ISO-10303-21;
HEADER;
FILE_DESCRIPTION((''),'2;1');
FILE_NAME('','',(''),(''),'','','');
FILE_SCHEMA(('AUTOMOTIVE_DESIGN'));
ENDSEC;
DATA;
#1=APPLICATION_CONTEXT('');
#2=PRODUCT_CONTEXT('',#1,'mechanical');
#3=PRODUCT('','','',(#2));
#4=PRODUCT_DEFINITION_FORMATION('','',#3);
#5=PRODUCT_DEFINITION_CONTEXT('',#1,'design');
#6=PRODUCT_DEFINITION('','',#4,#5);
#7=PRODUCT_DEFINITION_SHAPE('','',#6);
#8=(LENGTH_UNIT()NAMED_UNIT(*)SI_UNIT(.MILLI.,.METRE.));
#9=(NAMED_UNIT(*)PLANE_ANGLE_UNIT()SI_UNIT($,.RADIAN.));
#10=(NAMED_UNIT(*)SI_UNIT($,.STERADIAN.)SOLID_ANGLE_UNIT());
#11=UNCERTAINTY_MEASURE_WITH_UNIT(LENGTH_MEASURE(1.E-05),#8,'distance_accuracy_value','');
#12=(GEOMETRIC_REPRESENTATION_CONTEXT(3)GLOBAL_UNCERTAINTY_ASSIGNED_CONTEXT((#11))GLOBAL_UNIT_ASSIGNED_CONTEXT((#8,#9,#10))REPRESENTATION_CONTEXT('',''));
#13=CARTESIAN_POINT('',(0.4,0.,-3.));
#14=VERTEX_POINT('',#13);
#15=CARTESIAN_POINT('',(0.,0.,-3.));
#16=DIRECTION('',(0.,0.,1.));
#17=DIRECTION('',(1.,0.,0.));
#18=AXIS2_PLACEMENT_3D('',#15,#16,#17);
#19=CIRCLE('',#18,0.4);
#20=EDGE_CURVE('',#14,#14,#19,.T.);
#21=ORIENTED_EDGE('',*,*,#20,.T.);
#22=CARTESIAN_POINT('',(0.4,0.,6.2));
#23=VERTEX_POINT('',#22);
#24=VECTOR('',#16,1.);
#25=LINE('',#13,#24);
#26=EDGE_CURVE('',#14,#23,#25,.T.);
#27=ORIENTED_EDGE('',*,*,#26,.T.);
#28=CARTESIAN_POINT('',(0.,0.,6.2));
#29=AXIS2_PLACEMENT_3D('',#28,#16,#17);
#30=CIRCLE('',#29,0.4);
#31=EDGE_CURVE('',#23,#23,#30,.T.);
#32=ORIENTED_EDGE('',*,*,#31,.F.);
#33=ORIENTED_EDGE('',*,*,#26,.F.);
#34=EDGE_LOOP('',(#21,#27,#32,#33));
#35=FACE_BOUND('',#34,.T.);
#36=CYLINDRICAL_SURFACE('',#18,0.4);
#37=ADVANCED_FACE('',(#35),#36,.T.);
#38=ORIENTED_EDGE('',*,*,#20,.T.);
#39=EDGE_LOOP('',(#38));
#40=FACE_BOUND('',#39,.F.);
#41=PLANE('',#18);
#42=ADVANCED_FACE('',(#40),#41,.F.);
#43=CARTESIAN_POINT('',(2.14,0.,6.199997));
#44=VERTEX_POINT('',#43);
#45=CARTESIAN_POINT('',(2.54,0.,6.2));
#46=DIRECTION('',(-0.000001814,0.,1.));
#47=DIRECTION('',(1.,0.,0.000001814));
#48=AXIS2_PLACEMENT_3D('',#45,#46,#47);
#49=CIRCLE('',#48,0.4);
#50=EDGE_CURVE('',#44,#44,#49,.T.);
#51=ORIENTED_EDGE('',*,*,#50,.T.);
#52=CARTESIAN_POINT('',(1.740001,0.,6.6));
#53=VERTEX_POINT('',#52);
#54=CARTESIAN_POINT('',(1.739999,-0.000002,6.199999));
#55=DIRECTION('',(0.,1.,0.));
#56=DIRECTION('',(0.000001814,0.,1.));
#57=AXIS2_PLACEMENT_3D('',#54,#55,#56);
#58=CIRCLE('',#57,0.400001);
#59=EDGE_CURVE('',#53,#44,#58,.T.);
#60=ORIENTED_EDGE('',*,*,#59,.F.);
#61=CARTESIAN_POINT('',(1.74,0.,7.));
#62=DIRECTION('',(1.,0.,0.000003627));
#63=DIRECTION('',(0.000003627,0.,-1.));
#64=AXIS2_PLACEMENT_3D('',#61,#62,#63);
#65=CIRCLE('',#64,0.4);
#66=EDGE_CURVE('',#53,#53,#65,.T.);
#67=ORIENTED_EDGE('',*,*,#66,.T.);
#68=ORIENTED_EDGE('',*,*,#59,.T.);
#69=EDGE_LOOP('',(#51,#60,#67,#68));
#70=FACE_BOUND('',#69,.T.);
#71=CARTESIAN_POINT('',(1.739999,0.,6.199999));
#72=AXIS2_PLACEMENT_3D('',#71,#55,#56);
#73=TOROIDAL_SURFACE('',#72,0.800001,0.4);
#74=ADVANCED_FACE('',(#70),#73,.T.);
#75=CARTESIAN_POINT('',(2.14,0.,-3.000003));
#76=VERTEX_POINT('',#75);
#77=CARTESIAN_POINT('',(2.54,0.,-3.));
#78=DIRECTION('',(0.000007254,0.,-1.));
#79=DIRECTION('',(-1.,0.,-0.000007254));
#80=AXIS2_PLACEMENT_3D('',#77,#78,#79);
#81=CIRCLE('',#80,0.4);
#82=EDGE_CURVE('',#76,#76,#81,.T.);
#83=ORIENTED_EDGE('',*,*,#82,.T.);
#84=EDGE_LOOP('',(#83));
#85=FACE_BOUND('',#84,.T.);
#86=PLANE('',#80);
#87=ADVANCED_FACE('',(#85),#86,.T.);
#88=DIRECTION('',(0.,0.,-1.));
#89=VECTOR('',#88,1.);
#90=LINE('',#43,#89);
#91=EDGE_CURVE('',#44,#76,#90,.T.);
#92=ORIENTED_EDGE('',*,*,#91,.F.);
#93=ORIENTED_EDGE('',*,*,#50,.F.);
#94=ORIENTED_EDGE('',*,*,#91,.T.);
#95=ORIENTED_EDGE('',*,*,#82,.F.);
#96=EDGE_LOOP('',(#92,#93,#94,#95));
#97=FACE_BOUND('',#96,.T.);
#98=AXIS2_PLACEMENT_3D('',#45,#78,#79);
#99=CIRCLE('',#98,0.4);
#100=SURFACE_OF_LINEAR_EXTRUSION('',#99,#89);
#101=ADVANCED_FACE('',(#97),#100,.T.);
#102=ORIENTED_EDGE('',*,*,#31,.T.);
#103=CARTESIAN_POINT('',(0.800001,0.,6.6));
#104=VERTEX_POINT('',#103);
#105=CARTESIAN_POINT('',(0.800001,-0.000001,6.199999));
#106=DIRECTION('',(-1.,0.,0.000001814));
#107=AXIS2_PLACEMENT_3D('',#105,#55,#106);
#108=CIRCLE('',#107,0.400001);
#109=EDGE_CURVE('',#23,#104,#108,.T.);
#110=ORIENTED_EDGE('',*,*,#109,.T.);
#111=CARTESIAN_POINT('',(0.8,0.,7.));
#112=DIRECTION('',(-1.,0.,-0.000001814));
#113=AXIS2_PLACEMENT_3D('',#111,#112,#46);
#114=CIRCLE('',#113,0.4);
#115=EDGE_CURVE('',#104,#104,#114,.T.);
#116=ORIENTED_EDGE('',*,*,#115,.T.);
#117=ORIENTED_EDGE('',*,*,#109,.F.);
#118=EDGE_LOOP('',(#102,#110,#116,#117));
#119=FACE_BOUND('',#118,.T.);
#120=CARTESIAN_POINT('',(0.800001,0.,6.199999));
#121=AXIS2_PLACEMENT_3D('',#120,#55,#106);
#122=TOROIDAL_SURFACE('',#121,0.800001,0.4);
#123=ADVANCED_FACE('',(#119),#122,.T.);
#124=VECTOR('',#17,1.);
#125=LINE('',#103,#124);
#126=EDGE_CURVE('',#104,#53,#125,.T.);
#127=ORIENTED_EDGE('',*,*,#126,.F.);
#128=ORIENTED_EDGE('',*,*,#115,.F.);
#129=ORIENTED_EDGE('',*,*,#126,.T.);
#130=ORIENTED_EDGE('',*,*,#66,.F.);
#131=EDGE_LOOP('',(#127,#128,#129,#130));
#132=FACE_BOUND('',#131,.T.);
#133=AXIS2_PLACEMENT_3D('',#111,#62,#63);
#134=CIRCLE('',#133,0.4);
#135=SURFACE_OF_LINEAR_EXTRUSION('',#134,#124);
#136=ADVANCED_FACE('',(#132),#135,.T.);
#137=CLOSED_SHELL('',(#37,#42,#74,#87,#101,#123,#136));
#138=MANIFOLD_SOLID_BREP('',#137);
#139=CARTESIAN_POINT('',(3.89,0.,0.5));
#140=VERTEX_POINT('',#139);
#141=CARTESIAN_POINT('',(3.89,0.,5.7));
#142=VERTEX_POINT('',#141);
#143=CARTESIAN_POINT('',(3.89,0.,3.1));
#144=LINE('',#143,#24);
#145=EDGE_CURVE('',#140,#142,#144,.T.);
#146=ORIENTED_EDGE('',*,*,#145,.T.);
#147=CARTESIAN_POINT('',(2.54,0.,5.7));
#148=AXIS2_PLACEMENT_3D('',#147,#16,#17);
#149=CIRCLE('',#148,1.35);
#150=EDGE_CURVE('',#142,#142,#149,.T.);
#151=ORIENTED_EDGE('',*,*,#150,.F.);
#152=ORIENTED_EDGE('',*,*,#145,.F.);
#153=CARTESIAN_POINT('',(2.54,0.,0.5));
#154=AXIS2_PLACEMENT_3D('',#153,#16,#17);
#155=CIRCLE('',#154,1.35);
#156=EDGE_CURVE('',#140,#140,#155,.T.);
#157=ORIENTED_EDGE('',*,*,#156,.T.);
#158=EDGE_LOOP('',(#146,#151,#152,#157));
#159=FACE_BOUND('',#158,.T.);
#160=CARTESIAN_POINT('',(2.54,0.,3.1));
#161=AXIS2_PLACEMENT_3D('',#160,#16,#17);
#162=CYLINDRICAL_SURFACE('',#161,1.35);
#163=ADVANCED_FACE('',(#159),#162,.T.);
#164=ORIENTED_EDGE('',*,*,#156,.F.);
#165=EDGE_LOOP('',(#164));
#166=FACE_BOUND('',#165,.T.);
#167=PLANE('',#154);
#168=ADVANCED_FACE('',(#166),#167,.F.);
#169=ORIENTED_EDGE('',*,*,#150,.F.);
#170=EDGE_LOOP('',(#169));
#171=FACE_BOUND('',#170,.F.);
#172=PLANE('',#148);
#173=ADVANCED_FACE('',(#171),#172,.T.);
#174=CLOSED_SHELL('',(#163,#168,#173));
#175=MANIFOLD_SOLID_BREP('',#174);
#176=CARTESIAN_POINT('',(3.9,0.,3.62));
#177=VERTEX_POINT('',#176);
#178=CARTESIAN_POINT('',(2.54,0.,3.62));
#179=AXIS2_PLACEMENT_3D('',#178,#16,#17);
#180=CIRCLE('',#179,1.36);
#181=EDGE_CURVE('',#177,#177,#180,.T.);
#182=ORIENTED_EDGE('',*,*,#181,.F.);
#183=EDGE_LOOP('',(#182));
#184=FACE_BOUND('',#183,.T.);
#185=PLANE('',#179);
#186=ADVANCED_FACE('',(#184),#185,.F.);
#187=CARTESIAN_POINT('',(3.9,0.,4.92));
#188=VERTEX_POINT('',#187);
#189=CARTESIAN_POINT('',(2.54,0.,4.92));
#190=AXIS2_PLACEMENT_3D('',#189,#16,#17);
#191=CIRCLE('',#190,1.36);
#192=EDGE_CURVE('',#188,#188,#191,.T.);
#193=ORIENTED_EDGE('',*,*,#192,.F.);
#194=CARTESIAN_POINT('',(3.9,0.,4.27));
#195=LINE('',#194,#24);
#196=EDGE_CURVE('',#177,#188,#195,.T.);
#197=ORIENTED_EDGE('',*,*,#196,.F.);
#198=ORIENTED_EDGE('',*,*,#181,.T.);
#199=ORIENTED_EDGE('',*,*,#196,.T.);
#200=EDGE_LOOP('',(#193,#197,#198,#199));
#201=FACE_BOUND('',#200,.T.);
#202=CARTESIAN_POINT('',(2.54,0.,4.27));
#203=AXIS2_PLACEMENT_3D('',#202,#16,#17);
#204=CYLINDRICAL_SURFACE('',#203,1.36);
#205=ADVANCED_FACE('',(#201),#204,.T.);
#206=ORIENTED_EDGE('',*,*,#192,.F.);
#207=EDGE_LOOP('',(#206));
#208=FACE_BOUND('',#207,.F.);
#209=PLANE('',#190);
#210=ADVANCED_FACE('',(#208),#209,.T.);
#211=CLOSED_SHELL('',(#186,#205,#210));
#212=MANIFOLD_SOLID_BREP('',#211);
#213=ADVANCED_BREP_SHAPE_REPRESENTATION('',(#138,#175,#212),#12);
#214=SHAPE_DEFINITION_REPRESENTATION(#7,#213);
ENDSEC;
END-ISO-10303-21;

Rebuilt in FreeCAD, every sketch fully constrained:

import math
import FreeCAD as App
import Part
import Sketcher


def add_polygon(sketch, points):
    """Adds a closed chain of lines whose ends are joined by coincident constraints."""
    first, n = sketch.GeometryCount, len(points)
    for a, b in zip(points, points[1:] + points[:1]):
        sketch.addGeometry(Part.LineSegment(App.Vector(*a, 0), App.Vector(*b, 0)), False)
    for i in range(n):
        sketch.addConstraint(Sketcher.Constraint("Coincident", first + i, 2, first + (i + 1) % n, 1))

doc = App.newDocument("Part")
params = doc.addObject("Spreadsheet::Sheet", "Params")
for row, (alias, value) in enumerate([
    ("sketch1_diameter", "0.8 mm"),
    ("sketch2_radius", "0.800001 mm"),
    ("sketch2_height", "9.2 mm"),
    ("sketch2_width", "0.94 mm"),
    ("sketch3_height", "5.2 mm"),
    ("sketch3_width", "1.35 mm"),
    ("revolution_angle", "360 deg"),
    ("sketch4_height", "1.3 mm"),
    ("sketch4_width", "1.36 mm"),
    ("revolution2_angle", "360 deg"),
], start=1):
    params.set(f"A{row}", alias)
    params.set(f"B{row}", "=" + value)
    params.setAlias(f"B{row}", alias)

body = doc.addObject("PartDesign::Body", "Body")

# Sketch on XY plane
sketch1 = doc.addObject("Sketcher::SketchObject", "Sketch")
body.addObject(sketch1)
sketch1.AttachmentSupport = (doc.XY_Plane, [""])
sketch1.MapMode = "FlatFace"
sketch1.addGeometry(Part.Circle(App.Vector(0, 0, 0), App.Vector(0, 0, 1), 0.4), False)
sketch1.addConstraint([
    Sketcher.Constraint("Coincident", 0, 3, -1, 1),
    Sketcher.Constraint("Diameter", 0, 0.8),
])
sketch1.setExpression("Constraints[1]", "Params.sketch1_diameter")

# Sketch on XZ plane
sketch2 = doc.addObject("Sketcher::SketchObject", "Sketch001")
body.addObject(sketch2)
sketch2.AttachmentSupport = (doc.XZ_Plane, [""])
sketch2.MapMode = "FlatFace"
sketch2.addGeometry([
    Part.LineSegment(App.Vector(0, -3, 0), App.Vector(0, 6.2, 0)),  # 0
    Part.ArcOfCircle(Part.Circle(App.Vector(0.800001, 6.199999, 0), App.Vector(0, 0, 1), 0.800001), math.radians(90.000104), math.radians(179.999896)),  # 1
    Part.LineSegment(App.Vector(0.8, 7, 0), App.Vector(1.74, 7, 0)),  # 2
    Part.ArcOfCircle(Part.Circle(App.Vector(1.739999, 6.199999, 0), App.Vector(0, 0, 1), 0.800001), math.radians(0.000104), math.radians(89.999896)),  # 3
    Part.LineSegment(App.Vector(2.54, 6.2, 0), App.Vector(2.54, -3, 0)),  # 4
], False)
sketch2.addConstraint([
    Sketcher.Constraint("Tangent", 0, 2, 1, 2),
    Sketcher.Constraint("Tangent", 1, 1, 2, 1),
    Sketcher.Constraint("Tangent", 2, 2, 3, 2),
    Sketcher.Constraint("Tangent", 3, 1, 4, 1),
    Sketcher.Constraint("Vertical", 0),
    Sketcher.Constraint("Horizontal", 2),
    Sketcher.Constraint("Vertical", 4),
    Sketcher.Constraint("Equal", 1, 3),
    Sketcher.Constraint("PointOnObject", 0, 1, -2),
    Sketcher.Constraint("Horizontal", 0, 1, 4, 2),
    Sketcher.Constraint("Radius", 1, 0.800001),
    Sketcher.Constraint("DistanceY", 0, 1, 0, 2, 9.2),
    Sketcher.Constraint("DistanceY", 0, 1, -1, 1, 3.0),
    Sketcher.Constraint("DistanceX", 2, 1, 2, 2, 0.94),
])
sketch2.setExpression("Constraints[10]", "Params.sketch2_radius")
sketch2.setExpression("Constraints[11]", "Params.sketch2_height")
sketch2.setExpression("Constraints[13]", "Params.sketch2_width")
doc.recompute()

additivepipe = doc.addObject("PartDesign::AdditivePipe", "AdditivePipe")
body.addObject(additivepipe)
additivepipe.Profile = sketch1
additivepipe.Spine = (sketch2, ["Edge1", "Edge2", "Edge3", "Edge4", "Edge5"])
body2 = doc.addObject("PartDesign::Body", "Body001")

# Sketch on XZ plane
sketch3 = doc.addObject("Sketcher::SketchObject", "Sketch002")
body2.addObject(sketch3)
sketch3.AttachmentSupport = (doc.getObject("XZ_Plane001"), [""])
sketch3.MapMode = "FlatFace"
add_polygon(sketch3, [(2.54, 5.7), (2.54, 0.5), (3.89, 0.5), (3.89, 5.7)])  # lines 0-3
sketch3.addGeometry(Part.LineSegment(App.Vector(2.54, 0.5, 0), App.Vector(2.54, 5.7, 0)), True)  # axis
sketch3.addConstraint([
    Sketcher.Constraint("Vertical", 0),
    Sketcher.Constraint("Horizontal", 1),
    Sketcher.Constraint("Vertical", 2),
    Sketcher.Constraint("Horizontal", 3),
    Sketcher.Constraint("Vertical", 4),
    Sketcher.Constraint("Coincident", 4, 1, 0, 2),
    Sketcher.Constraint("Horizontal", 2, 2, 4, 2),
    Sketcher.Constraint("DistanceY", 0, 2, 0, 1, 5.2),
    Sketcher.Constraint("DistanceX", 1, 1, 1, 2, 1.35),
    Sketcher.Constraint("DistanceY", -1, 1, 0, 2, 0.5),
    Sketcher.Constraint("DistanceX", -1, 1, 0, 2, 2.54),
])
sketch3.setExpression("Constraints[11]", "Params.sketch3_height")
sketch3.setExpression("Constraints[12]", "Params.sketch3_width")
revolution = doc.addObject("PartDesign::Revolution", "Revolution")
body2.addObject(revolution)
revolution.Profile = sketch3
revolution.ReferenceAxis = (sketch3, ["Axis0"])
revolution.setExpression("Angle", "Params.revolution_angle")
body3 = doc.addObject("PartDesign::Body", "Body002")

# Sketch on XZ plane
sketch4 = doc.addObject("Sketcher::SketchObject", "Sketch003")
body3.addObject(sketch4)
sketch4.AttachmentSupport = (doc.getObject("XZ_Plane002"), [""])
sketch4.MapMode = "FlatFace"
add_polygon(sketch4, [(2.54, 4.92), (2.54, 3.62), (3.9, 3.62), (3.9, 4.92)])  # lines 0-3
sketch4.addGeometry(Part.LineSegment(App.Vector(2.54, 3.62, 0), App.Vector(2.54, 4.92, 0)), True)  # axis
sketch4.addConstraint([
    Sketcher.Constraint("Vertical", 0),
    Sketcher.Constraint("Horizontal", 1),
    Sketcher.Constraint("Vertical", 2),
    Sketcher.Constraint("Horizontal", 3),
    Sketcher.Constraint("Vertical", 4),
    Sketcher.Constraint("Coincident", 4, 1, 0, 2),
    Sketcher.Constraint("Horizontal", 2, 2, 4, 2),
    Sketcher.Constraint("DistanceY", 0, 2, 0, 1, 1.3),
    Sketcher.Constraint("DistanceX", 1, 1, 1, 2, 1.36),
    Sketcher.Constraint("DistanceX", -1, 1, 1, 2, 3.9),
    Sketcher.Constraint("DistanceY", -1, 1, 0, 2, 3.62),
])
sketch4.setExpression("Constraints[11]", "Params.sketch4_height")
sketch4.setExpression("Constraints[12]", "Params.sketch4_width")
revolution2 = doc.addObject("PartDesign::Revolution", "Revolution001")
body3.addObject(revolution2)
revolution2.Profile = sketch4
revolution2.ReferenceAxis = (sketch4, ["Axis0"])
revolution2.setExpression("Angle", "Params.revolution2_angle")

doc.recompute()
